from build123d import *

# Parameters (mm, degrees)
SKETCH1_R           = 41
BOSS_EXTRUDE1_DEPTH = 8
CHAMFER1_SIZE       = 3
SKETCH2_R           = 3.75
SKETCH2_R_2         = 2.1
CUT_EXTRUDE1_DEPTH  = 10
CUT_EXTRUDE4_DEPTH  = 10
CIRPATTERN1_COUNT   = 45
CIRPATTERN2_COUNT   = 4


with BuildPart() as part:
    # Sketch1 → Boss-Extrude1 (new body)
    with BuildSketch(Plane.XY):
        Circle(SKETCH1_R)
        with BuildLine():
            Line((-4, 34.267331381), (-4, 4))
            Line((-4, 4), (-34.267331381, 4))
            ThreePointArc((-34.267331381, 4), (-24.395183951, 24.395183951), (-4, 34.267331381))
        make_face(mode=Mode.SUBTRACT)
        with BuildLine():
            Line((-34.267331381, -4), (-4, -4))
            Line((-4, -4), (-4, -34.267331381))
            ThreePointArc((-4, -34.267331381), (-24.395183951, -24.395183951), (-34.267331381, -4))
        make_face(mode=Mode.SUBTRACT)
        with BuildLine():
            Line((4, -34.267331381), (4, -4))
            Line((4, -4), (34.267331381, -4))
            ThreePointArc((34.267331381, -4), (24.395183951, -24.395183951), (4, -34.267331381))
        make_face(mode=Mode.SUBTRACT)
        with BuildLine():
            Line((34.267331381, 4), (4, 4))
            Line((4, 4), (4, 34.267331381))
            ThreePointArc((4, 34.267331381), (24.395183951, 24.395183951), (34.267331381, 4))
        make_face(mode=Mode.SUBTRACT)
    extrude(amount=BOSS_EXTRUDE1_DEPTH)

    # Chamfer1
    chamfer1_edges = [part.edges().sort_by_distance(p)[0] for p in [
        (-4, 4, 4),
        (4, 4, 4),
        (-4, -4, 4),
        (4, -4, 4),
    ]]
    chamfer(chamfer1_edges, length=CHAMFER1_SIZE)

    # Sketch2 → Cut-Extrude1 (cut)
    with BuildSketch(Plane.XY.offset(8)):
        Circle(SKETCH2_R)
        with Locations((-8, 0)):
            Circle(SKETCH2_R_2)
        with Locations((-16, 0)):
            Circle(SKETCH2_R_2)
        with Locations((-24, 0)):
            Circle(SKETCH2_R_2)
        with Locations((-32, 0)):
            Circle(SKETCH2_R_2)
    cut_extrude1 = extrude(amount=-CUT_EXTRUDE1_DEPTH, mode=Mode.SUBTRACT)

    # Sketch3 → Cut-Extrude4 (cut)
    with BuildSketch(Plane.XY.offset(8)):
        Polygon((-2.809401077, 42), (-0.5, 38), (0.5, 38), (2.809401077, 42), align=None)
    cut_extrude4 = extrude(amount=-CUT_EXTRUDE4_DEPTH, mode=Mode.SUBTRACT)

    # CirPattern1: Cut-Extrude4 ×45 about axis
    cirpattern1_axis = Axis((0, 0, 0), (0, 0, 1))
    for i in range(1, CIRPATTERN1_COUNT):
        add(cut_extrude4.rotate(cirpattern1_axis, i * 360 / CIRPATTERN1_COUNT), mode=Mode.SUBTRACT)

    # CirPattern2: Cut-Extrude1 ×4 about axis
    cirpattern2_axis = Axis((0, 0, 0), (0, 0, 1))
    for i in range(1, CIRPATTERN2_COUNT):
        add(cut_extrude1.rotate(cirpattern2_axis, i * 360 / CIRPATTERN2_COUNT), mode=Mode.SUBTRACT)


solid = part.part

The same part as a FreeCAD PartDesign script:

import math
import FreeCAD as App
import Part
import Sketcher
from FreeCAD import Vector
Q = App.Units.Quantity


def edges_at(feature, points):
    """Names of the edges that pass closest to the given points."""
    edges = feature.Shape.Edges
    near = lambda p: min(range(len(edges)), key=lambda i: edges[i].distToShape(Part.Vertex(*p))[0])
    return sorted({f"Edge{near(p) + 1}" for p in points})


def add_polygon(sketch, points):
    """Adds a closed chain of lines whose ends are joined by coincident constraints."""
    first, n = sketch.GeometryCount, len(points)
    for a, b in zip(points, points[1:] + points[:1]):
        sketch.addGeometry(Part.LineSegment(App.Vector(*a, 0), App.Vector(*b, 0)), False)
    for i in range(n):
        sketch.addConstraint(Sketcher.Constraint("Coincident", first + i, 2, first + (i + 1) % n, 1))

doc = App.newDocument("Part")
body = doc.addObject("PartDesign::Body", "Body")

# Sketch on XY plane
sketch1 = body.newObject("Sketcher::SketchObject", "Sketch")
sketch1.AttachmentSupport = (doc.getObject("XY_Plane"), [""])
sketch1.MapMode = "FlatFace"
sketch1.addGeometry([
    Part.Circle(Vector(0, 0, 0), Vector(0, 0, 1), 41),  # 0
    Part.ArcOfCircle(Part.Circle(Vector(0, 0, 0), Vector(0, 0, 1), 34), math.radians(-173), math.radians(-97)),  # 1
    Part.LineSegment(Vector(-34, -4, 0), Vector(-4, -4, 0)),  # 2
    Part.LineSegment(Vector(-4, -4, 0), Vector(-4, -34, 0)),  # 3
    Part.ArcOfCircle(Part.Circle(Vector(0, 0, 0), Vector(0, 0, 1), 34), math.radians(-83), math.radians(-7)),  # 4
    Part.LineSegment(Vector(4, -34, 0), Vector(4, -4, 0)),  # 5
    Part.LineSegment(Vector(4, -4, 0), Vector(34, -4, 0)),  # 6
    Part.ArcOfCircle(Part.Circle(Vector(0, 0, 0), Vector(0, 0, 1), 34), math.radians(97), math.radians(173)),  # 7
    Part.LineSegment(Vector(-4, 34, 0), Vector(-4, 4, 0)),  # 8
    Part.LineSegment(Vector(-4, 4, 0), Vector(-34, 4, 0)),  # 9
    Part.ArcOfCircle(Part.Circle(Vector(0, 0, 0), Vector(0, 0, 1), 34), math.radians(7), math.radians(83)),  # 10
    Part.LineSegment(Vector(34, 4, 0), Vector(4, 4, 0)),  # 11
    Part.LineSegment(Vector(4, 4, 0), Vector(4, 34, 0)),  # 12
], False)
sketch1.addConstraint([
    Sketcher.Constraint("Coincident", 1, 1, 2, 1),
    Sketcher.Constraint("Coincident", 2, 2, 3, 1),
    Sketcher.Constraint("Coincident", 3, 2, 1, 2),
    Sketcher.Constraint("Coincident", 4, 1, 5, 1),
    Sketcher.Constraint("Coincident", 5, 2, 6, 1),
    Sketcher.Constraint("Coincident", 6, 2, 4, 2),
    Sketcher.Constraint("Coincident", 7, 1, 8, 1),
    Sketcher.Constraint("Coincident", 8, 2, 9, 1),
    Sketcher.Constraint("Coincident", 9, 2, 7, 2),
    Sketcher.Constraint("Coincident", 10, 1, 11, 1),
    Sketcher.Constraint("Coincident", 11, 2, 12, 1),
    Sketcher.Constraint("Coincident", 12, 2, 10, 2),
    Sketcher.Constraint("Horizontal", 2),
    Sketcher.Constraint("Vertical", 3),
    Sketcher.Constraint("Vertical", 5),
    Sketcher.Constraint("Horizontal", 6),
    Sketcher.Constraint("Vertical", 8),
    Sketcher.Constraint("Horizontal", 9),
    Sketcher.Constraint("Horizontal", 11),
    Sketcher.Constraint("Vertical", 12),
    Sketcher.Constraint("Coincident", 0, 3, -1, 1),
    Sketcher.Constraint("Coincident", 1, 3, -1, 1),
    Sketcher.Constraint("Coincident", 4, 3, -1, 1),
    Sketcher.Constraint("Coincident", 7, 3, -1, 1),
    Sketcher.Constraint("Coincident", 10, 3, -1, 1),
    Sketcher.Constraint("Equal", 1, 4),
    Sketcher.Constraint("Equal", 4, 7),
    Sketcher.Constraint("Equal", 7, 10),
    Sketcher.Constraint("Symmetric", 5, 2, 8, 2, -1, 1),
    Sketcher.Constraint("Symmetric", 2, 2, 11, 2, -1, 1),
    Sketcher.Constraint("Symmetric", 2, 2, 5, 2, -2),
    Sketcher.Constraint("Equal", 11, 3),
    Sketcher.Constraint("Diameter", 0, Q("82 mm")),
    Sketcher.Constraint("Radius", 1, Q("34.5 mm")),
    Sketcher.Constraint("DistanceY", 1, 1, -1, 1, Q("4 mm")),
])
pad1 = body.newObject("PartDesign::Pad", "Pad")
pad1.Profile = sketch1
pad1.Length = 8
doc.recompute()

chamfer = body.newObject("PartDesign::Chamfer", "Chamfer")
chamfer.Base = (pad1, edges_at(pad1, [
    (-4, 4, 4),
    (4, 4, 4),
    (-4, -4, 4),
    (4, -4, 4),
]))
chamfer.Size = 3

# Sketch on XY plane
sketch2 = body.newObject("Sketcher::SketchObject", "Sketch001")
sketch2.AttachmentSupport = (doc.getObject("XY_Plane"), [""])
sketch2.MapMode = "FlatFace"
sketch2.AttachmentOffset = App.Placement(Vector(0, 0, 8), App.Rotation())
sketch2.addGeometry([
    Part.Circle(Vector(0, 0, 0), Vector(0, 0, 1), 3.8),  # 0
    Part.Circle(Vector(-8, 0, 0), Vector(0, 0, 1), 2.1),  # 1
    Part.Circle(Vector(-16, 0, 0), Vector(0, 0, 1), 2.1),  # 2
    Part.Circle(Vector(-24, 0, 0), Vector(0, 0, 1), 2.1),  # 3
    Part.Circle(Vector(-32, 0, 0), Vector(0, 0, 1), 2.1),  # 4
], False)
sketch2.addConstraint([
    Sketcher.Constraint("Coincident", 0, 3, -1, 1),
    Sketcher.Constraint("Equal", 1, 2),
    Sketcher.Constraint("Equal", 2, 3),
    Sketcher.Constraint("Equal", 3, 4),
    Sketcher.Constraint("PointOnObject", 1, 3, -1),
    Sketcher.Constraint("PointOnObject", 2, 3, -1),
    Sketcher.Constraint("PointOnObject", 3, 3, -1),
    Sketcher.Constraint("PointOnObject", 4, 3, -1),
    Sketcher.Constraint("Diameter", 0, Q("7.5 mm")),
    Sketcher.Constraint("Diameter", 1, Q("4.2 mm")),
    Sketcher.Constraint("DistanceX", 1, 3, -1, 1, Q("8 mm")),
    Sketcher.Constraint("DistanceX", 2, 3, -1, 1, Q("16 mm")),
    Sketcher.Constraint("DistanceX", 3, 3, -1, 1, Q("24 mm")),
    Sketcher.Constraint("DistanceX", 4, 3, -1, 1, Q("32 mm")),
])
pocket1 = body.newObject("PartDesign::Pocket", "Pocket")
pocket1.Profile = sketch2
pocket1.Length = 10

# Sketch on XY plane
sketch3 = body.newObject("Sketcher::SketchObject", "Sketch002")
sketch3.AttachmentSupport = (doc.getObject("XY_Plane"), [""])
sketch3.MapMode = "FlatFace"
sketch3.AttachmentOffset = App.Placement(Vector(0, 0, 8), App.Rotation())
add_polygon(sketch3, [(-2.8, 42), (-0.5, 38), (0.5, 38), (2.8, 42)])  # lines 0-3
sketch3.addConstraint([
    Sketcher.Constraint("Horizontal", 1),
    Sketcher.Constraint("Horizontal", 3),
    Sketcher.Constraint("Equal", 0, 2),
    Sketcher.Constraint("DistanceX", 1, 1, 1, 2, Q("1 mm")),
    Sketcher.Constraint("Angle", 0, Q("-60 deg")),
    Sketcher.Constraint("DistanceY", -1, 1, 0, 2, Q("38 mm")),
    Sketcher.Constraint("DistanceY", -1, 1, 2, 2, Q("42 mm")),
    Sketcher.Constraint("DistanceX", 0, 2, -1, 1, Q("0.5 mm")),
])
pocket2 = body.newObject("PartDesign::Pocket", "Pocket001")
pocket2.Profile = sketch3
pocket2.Length = 10
doc.recompute()

polarpattern = body.newObject("PartDesign::PolarPattern", "PolarPattern")
polarpattern.Originals = [pocket2]
polarpattern.Axis = (doc.getObject("Z_Axis"), [""])
polarpattern.Angle = 360
polarpattern.Occurrences = 45
body.Tip = polarpattern
doc.recompute()

polarpattern2 = body.newObject("PartDesign::PolarPattern", "PolarPattern001")
polarpattern2.Originals = [pocket1]
polarpattern2.Axis = (doc.getObject("Z_Axis"), [""])
polarpattern2.Angle = 360
polarpattern2.Occurrences = 4
body.Tip = polarpattern2

doc.recompute()
